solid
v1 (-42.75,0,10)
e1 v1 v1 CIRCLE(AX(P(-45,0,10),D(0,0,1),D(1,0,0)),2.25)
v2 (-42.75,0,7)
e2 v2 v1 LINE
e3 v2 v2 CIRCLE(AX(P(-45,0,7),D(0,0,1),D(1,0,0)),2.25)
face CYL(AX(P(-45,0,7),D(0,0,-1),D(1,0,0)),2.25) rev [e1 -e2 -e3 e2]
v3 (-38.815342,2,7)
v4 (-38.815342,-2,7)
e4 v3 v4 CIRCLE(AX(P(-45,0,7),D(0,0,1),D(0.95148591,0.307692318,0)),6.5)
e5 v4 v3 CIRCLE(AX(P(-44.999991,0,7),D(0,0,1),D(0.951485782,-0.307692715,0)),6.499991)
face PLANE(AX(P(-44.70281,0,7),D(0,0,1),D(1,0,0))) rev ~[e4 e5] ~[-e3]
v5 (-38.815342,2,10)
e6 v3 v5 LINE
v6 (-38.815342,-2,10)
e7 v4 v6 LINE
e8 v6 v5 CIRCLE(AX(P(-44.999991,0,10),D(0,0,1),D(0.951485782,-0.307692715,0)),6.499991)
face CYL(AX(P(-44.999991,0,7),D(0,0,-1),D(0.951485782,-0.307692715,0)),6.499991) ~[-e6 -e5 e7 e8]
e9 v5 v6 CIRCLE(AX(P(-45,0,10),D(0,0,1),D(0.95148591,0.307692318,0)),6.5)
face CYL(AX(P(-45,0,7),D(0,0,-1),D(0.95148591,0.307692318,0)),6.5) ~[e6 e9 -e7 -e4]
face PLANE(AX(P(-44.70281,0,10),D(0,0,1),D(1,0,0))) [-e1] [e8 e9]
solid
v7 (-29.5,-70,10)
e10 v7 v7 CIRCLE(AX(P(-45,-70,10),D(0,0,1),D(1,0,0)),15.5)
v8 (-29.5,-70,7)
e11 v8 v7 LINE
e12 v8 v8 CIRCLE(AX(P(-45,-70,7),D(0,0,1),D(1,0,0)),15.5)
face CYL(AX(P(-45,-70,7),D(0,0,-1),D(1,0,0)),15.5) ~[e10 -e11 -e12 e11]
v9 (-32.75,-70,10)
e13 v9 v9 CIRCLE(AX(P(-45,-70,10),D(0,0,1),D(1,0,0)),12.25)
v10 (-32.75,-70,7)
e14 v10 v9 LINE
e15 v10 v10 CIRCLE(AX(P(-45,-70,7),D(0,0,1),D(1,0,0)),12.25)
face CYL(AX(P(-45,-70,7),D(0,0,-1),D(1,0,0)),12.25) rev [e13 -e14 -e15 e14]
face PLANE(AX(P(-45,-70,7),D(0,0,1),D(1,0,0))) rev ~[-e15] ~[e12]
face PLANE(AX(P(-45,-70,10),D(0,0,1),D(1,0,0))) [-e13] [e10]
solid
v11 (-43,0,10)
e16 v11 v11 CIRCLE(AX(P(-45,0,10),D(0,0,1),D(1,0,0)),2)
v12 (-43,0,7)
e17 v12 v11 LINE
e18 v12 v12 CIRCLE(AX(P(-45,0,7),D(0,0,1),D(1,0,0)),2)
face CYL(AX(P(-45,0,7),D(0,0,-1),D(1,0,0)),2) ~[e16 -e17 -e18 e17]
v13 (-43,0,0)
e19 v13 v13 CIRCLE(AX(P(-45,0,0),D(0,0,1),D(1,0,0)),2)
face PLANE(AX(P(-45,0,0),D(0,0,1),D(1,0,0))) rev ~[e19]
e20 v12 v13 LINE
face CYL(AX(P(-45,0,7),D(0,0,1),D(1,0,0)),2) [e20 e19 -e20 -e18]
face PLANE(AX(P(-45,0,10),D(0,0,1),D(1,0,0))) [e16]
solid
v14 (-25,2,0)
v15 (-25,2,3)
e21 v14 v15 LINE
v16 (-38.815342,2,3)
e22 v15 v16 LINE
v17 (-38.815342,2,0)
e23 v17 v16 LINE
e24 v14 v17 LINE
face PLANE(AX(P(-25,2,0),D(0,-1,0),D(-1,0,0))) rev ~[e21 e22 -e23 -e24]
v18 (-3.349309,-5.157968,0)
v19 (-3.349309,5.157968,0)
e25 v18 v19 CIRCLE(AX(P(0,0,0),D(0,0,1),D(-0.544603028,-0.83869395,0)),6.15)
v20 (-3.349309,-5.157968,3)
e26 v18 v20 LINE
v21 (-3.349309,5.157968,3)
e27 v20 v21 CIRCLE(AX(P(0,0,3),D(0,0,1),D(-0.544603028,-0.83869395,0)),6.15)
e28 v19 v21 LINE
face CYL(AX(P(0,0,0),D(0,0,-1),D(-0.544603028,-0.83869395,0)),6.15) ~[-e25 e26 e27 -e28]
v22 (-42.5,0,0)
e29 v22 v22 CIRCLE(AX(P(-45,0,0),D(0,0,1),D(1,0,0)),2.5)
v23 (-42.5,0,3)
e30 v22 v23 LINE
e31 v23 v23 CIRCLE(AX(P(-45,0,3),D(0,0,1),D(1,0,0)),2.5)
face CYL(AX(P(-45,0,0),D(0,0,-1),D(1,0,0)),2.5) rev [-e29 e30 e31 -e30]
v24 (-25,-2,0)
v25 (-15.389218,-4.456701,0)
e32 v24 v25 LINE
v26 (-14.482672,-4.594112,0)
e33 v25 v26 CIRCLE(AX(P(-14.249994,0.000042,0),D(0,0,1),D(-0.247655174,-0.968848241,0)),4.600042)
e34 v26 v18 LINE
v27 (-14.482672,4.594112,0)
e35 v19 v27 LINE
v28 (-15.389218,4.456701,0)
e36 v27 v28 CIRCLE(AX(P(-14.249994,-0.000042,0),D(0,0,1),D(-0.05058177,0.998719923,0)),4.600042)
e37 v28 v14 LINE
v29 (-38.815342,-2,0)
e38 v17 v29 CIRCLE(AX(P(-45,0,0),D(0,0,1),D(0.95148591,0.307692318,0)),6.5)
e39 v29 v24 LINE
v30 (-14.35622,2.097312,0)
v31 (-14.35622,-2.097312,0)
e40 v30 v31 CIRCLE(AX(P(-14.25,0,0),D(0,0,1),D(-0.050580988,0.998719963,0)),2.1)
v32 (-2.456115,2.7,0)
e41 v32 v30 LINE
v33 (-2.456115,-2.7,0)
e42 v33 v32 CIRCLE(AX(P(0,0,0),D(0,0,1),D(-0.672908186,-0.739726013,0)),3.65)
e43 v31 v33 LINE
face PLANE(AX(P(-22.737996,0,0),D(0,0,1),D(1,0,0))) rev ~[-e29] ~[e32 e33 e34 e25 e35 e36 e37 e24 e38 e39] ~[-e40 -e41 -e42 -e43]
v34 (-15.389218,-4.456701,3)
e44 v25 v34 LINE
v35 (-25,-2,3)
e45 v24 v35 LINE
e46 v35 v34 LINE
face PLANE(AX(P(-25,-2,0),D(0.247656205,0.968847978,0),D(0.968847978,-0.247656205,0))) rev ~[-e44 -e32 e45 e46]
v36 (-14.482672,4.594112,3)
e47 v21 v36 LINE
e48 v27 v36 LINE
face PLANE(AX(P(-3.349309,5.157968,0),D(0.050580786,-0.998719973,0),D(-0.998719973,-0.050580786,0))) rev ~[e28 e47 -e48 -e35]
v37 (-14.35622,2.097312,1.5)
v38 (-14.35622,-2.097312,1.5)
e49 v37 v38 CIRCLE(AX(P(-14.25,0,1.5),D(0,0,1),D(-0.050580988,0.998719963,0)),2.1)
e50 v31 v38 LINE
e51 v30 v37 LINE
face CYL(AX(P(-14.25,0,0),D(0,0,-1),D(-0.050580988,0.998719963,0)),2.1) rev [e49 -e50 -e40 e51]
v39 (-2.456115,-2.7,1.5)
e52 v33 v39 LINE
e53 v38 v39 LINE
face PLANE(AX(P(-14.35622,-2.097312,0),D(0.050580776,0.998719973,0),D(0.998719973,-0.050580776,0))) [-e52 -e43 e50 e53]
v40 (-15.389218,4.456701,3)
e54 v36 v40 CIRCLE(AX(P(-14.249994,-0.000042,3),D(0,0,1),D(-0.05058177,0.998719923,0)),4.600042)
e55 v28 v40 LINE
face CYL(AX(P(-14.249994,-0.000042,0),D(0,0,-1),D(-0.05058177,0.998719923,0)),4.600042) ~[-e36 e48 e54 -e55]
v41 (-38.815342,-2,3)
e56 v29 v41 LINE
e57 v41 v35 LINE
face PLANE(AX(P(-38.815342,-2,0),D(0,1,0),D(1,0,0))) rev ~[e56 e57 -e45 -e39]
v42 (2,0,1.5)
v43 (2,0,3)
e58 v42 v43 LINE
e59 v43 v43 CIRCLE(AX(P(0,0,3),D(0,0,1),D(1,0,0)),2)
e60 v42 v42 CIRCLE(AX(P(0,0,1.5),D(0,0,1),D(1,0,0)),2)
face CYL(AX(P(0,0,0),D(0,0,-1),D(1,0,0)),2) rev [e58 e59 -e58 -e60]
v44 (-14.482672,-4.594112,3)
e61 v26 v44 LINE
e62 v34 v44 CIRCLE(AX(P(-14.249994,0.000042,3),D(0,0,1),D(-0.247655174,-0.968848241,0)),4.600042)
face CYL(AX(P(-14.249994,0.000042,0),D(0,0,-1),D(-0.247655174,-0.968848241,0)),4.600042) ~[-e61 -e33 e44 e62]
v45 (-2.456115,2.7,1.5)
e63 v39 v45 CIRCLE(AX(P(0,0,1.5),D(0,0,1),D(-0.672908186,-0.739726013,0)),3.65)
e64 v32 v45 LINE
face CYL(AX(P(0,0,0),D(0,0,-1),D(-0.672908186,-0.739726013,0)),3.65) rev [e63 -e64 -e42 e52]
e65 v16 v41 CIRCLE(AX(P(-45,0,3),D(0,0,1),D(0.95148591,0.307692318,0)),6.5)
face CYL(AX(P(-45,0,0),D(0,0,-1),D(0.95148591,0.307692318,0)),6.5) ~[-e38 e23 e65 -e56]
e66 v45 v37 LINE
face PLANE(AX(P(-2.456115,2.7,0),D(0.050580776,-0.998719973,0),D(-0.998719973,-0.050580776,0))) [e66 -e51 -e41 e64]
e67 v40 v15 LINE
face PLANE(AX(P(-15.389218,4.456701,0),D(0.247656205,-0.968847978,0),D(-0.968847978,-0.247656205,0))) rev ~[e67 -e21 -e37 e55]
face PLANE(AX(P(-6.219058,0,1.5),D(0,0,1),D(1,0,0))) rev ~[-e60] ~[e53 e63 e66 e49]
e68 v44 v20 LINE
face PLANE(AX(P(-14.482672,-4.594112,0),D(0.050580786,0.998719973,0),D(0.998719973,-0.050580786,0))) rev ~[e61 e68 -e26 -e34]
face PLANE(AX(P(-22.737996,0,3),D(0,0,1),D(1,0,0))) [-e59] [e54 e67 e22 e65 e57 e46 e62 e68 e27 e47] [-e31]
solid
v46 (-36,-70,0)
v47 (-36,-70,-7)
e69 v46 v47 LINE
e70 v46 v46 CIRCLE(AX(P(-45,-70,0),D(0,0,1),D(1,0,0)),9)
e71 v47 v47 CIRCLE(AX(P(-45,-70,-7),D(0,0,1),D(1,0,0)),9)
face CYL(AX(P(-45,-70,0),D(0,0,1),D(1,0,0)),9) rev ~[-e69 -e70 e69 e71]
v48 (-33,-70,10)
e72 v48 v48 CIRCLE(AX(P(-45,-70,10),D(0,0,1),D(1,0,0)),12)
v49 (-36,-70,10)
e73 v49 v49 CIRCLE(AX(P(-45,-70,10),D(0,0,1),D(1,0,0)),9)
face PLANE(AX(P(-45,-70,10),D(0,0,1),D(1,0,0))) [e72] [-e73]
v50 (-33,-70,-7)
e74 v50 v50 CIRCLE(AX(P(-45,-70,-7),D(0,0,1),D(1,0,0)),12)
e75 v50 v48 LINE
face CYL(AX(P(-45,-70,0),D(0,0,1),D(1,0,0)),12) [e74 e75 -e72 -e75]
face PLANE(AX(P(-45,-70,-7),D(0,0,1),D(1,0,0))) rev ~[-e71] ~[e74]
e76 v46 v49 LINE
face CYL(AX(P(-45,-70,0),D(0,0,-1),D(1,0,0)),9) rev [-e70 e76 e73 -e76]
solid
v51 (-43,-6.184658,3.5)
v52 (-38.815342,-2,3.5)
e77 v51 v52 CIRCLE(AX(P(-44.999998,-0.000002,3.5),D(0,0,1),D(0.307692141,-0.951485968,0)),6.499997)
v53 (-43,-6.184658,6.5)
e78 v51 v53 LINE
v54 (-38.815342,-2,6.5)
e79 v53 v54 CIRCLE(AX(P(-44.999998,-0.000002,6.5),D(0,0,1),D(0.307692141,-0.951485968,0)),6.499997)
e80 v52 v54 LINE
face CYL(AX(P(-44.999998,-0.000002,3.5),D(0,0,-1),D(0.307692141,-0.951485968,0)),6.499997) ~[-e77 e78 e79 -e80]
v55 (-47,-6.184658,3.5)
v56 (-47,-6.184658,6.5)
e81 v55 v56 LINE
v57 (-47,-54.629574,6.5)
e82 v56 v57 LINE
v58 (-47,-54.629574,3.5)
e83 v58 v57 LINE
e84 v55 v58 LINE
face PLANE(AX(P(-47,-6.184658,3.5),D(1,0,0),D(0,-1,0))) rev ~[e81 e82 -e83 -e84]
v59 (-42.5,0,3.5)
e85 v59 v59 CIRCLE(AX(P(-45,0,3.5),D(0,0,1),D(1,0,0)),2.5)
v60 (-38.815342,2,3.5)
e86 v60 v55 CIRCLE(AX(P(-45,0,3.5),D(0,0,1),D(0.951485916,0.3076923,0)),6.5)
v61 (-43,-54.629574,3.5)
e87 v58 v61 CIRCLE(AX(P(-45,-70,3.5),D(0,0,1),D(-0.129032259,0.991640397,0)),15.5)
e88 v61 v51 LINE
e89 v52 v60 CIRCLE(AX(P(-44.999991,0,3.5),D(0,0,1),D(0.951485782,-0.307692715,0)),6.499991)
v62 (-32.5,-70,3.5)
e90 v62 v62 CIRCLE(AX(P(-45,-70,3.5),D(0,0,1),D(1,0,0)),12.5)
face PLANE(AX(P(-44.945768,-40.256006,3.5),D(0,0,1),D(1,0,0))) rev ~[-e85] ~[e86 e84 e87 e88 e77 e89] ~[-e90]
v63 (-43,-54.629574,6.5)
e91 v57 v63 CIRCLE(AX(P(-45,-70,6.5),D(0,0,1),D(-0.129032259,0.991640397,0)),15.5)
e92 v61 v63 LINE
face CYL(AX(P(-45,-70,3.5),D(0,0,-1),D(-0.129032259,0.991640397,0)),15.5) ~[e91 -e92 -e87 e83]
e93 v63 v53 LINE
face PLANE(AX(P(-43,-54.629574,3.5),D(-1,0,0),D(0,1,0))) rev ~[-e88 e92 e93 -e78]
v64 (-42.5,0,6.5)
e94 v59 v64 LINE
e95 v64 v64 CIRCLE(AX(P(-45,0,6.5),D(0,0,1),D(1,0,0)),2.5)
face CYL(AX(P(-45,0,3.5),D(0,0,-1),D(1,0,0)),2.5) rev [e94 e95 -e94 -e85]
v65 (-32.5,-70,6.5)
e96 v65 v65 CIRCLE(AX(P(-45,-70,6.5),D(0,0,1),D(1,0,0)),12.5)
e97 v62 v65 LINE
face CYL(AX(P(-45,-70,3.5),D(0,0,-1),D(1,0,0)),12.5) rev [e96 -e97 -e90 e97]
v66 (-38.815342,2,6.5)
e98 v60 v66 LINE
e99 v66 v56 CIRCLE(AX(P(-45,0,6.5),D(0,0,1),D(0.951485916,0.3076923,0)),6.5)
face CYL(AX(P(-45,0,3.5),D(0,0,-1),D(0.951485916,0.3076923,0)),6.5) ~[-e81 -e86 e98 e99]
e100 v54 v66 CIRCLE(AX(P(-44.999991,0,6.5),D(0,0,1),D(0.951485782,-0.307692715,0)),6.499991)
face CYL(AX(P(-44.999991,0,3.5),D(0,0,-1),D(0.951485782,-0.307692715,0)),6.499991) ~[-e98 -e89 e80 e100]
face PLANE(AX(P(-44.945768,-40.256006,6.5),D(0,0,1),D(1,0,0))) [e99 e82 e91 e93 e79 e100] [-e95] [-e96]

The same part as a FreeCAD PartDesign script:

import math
import FreeCAD as App
import Part
import Sketcher
from FreeCAD import Vector
Q = App.Units.Quantity

doc = App.newDocument("Part")
body = doc.addObject("PartDesign::Body", "Body")

sketch1 = body.newObject("Sketcher::SketchObject", "Sketch")
sketch1.AttachmentSupport = (doc.getObject("XY_Plane"), [""])
sketch1.MapMode = "FlatFace"
sketch1.addGeometry([
    Part.ArcOfCircle(Part.Circle(Vector(0, 0, 0), Vector(0, 0, 1), 6.15), math.radians(-122.99754), math.radians(122.99754)),
    Part.LineSegment(Vector(-3.349309, 5.157968, 0), Vector(-14.482672, 4.594112, 0)),
    Part.ArcOfCircle(Part.Circle(Vector(-14.249994, -0.000042, 0), Vector(0, 0, 1), 4.600042), math.radians(92.899359), math.radians(104.338801)),
    Part.LineSegment(Vector(-15.389218, 4.456701, 0), Vector(-25, 2, 0)),
    Part.LineSegment(Vector(-25, 2, 0), Vector(-38.815342, 2, 0)),
    Part.ArcOfCircle(Part.Circle(Vector(-45, 0, 0), Vector(0, 0, 1), 6.5), math.radians(17.920214), math.radians(342.079786)),
    Part.LineSegment(Vector(-38.815342, -2, 0), Vector(-25, -2, 0)),
    Part.LineSegment(Vector(-25, -2, 0), Vector(-15.389218, -4.456701, 0)),
    Part.ArcOfCircle(Part.Circle(Vector(-14.249994, 0.000042, 0), Vector(0, 0, 1), 4.600042), math.radians(-104.338801), math.radians(-92.899359)),
    Part.LineSegment(Vector(-14.482672, -4.594112, 0), Vector(-3.349309, -5.157968, 0)),
    Part.Circle(Vector(-45, 0, 0), Vector(0, 0, 1), 2.5),
    Part.Circle(Vector(0, 0, 0), Vector(0, 0, 1), 2),
], False)
sketch1.addConstraint([
    Sketcher.Constraint("Coincident", 0, 2, 1, 1),
    Sketcher.Constraint("Tangent", 1, 2, 2, 1),
    Sketcher.Constraint("Tangent", 2, 2, 3, 1),
    Sketcher.Constraint("Coincident", 3, 2, 4, 1),
    Sketcher.Constraint("Coincident", 4, 2, 5, 1),
    Sketcher.Constraint("Coincident", 5, 2, 6, 1),
    Sketcher.Constraint("Coincident", 6, 2, 7, 1),
    Sketcher.Constraint("Tangent", 7, 2, 8, 1),
    Sketcher.Constraint("Tangent", 8, 2, 9, 1),
    Sketcher.Constraint("Coincident", 9, 2, 0, 1),
    Sketcher.Constraint("Horizontal", 4),
    Sketcher.Constraint("Horizontal", 6),
    Sketcher.Constraint("Coincident", 0, 3, -1, 1),
    Sketcher.Constraint("Coincident", 11, 3, -1, 1),
    Sketcher.Constraint("Coincident", 10, 3, 5, 3),
    Sketcher.Constraint("Equal", 2, 8),
    Sketcher.Constraint("Symmetric", 2, 3, 8, 3, -1),
    Sketcher.Constraint("Symmetric", 4, 2, 5, 2, -1),
    Sketcher.Constraint("Vertical", 3, 2, 6, 2),
    Sketcher.Constraint("Vertical", 1, 2, 8, 2),
    Sketcher.Constraint("Diameter", 10, Q("5 mm")),
    Sketcher.Constraint("Diameter", 11, Q("4 mm")),
    Sketcher.Constraint("Radius", 5, Q("6.5 mm")),
    Sketcher.Constraint("Radius", 0, Q("6.15 mm")),
    Sketcher.Constraint("DistanceX", 5, 3, -1, 1, Q("45 mm")),
    Sketcher.Constraint("DistanceX", 3, 2, -1, 1, Q("25 mm")),
    Sketcher.Constraint("DistanceY", -1, 1, 3, 2, Q("2 mm")),
    Sketcher.Constraint("Radius", 2, Q("4.600042 mm")),
    Sketcher.Constraint("DistanceY", -1, 1, 2, 2, Q("4.456701 mm")),
    Sketcher.Constraint("DistanceX", 0, 2, -1, 1, Q("3.349309 mm")),
    Sketcher.Constraint("DistanceX", 8, 2, -1, 1, Q("14.482672 mm")),
])
pad1 = body.newObject("PartDesign::Pad", "Pad")
pad1.Profile = sketch1
pad1.Length = 3

sketch2 = body.newObject("Sketcher::SketchObject", "Sketch001")
sketch2.AttachmentSupport = (doc.getObject("XY_Plane"), [""])
sketch2.MapMode = "FlatFace"
sketch2.addGeometry([
    Part.LineSegment(Vector(-14.4, -2.1, 0), Vector(-2.5, -2.7, 0)),
    Part.ArcOfCircle(Part.Circle(Vector(0, 0, 0), Vector(0, 0, 1), 3.7), math.radians(-132), math.radians(132)),
    Part.LineSegment(Vector(-2.5, 2.7, 0), Vector(-14.4, 2.1, 0)),
    Part.ArcOfCircle(Part.Circle(Vector(-14.2, 0, 0), Vector(0, 0, 1), 2.1), math.radians(93), math.radians(267)),
    Part.Circle(Vector(0, 0, 0), Vector(0, 0, 1), 2),
], False)
sketch2.addConstraint([
    Sketcher.Constraint("Coincident", 0, 2, 1, 1),
    Sketcher.Constraint("Coincident", 1, 2, 2, 1),
    Sketcher.Constraint("Tangent", 2, 2, 3, 1),
    Sketcher.Constraint("Tangent", 3, 2, 0, 1),
    Sketcher.Constraint("Coincident", 1, 3, -1, 1),
    Sketcher.Constraint("Coincident", 4, 3, -1, 1),
    Sketcher.Constraint("Symmetric", 2, 2, 3, 2, -1),
    Sketcher.Constraint("Diameter", 4, Q("4 mm")),
    Sketcher.Constraint("Radius", 3, Q("2.1 mm")),
    Sketcher.Constraint("Radius", 1, Q("3.65 mm")),
    Sketcher.Constraint("DistanceY", 0, 2, -1, 1, Q("2.7 mm")),
    Sketcher.Constraint("DistanceX", 3, 3, -1, 1, Q("14.25 mm")),
])
pocket1 = body.newObject("PartDesign::Pocket", "Pocket")
pocket1.Profile = sketch2
pocket1.Length = 1.5
pocket1.Reversed = True
body2 = doc.addObject("PartDesign::Body", "Body001")

sketch3 = body2.newObject("Sketcher::SketchObject", "Sketch002")
sketch3.AttachmentSupport = (doc.getObject("XY_Plane001"), [""])
sketch3.MapMode = "FlatFace"
sketch3.AttachmentOffset = App.Placement(Vector(0, 0, 3.5), App.Rotation())
sketch3.addGeometry([
    Part.ArcOfCircle(Part.Circle(Vector(-45, 0, 0), Vector(0, 0, 1), 6.5), math.radians(-18), math.radians(18)),
    Part.ArcOfCircle(Part.Circle(Vector(-45, 0, 0), Vector(0, 0, 1), 6.5), math.radians(18), math.radians(252)),
    Part.LineSegment(Vector(-47, -6.2, 0), Vector(-47, -54.6, 0)),
    Part.ArcOfCircle(Part.Circle(Vector(-45, -70, 0), Vector(0, 0, 1), 15.5), math.radians(97), math.radians(443)),
    Part.LineSegment(Vector(-43, -54.6, 0), Vector(-43, -6.2, 0)),
    Part.ArcOfCircle(Part.Circle(Vector(-45, 0, 0), Vector(0, 0, 1), 6.5), math.radians(-72), math.radians(-18)),
    Part.Circle(Vector(-45, -70, 0), Vector(0, 0, 1), 12.5),
    Part.Circle(Vector(-45, 0, 0), Vector(0, 0, 1), 2.5),
], False)
sketch3.addConstraint([
    Sketcher.Constraint("Tangent", 0, 2, 1, 1),
    Sketcher.Constraint("Coincident", 1, 2, 2, 1),
    Sketcher.Constraint("Coincident", 2, 2, 3, 1),
    Sketcher.Constraint("Coincident", 3, 2, 4, 1),
    Sketcher.Constraint("Coincident", 4, 2, 5, 1),
    Sketcher.Constraint("Tangent", 5, 2, 0, 1),
    Sketcher.Constraint("Vertical", 2),
    Sketcher.Constraint("Vertical", 4),
    Sketcher.Constraint("Coincident", 6, 3, 3, 3),
    Sketcher.Constraint("Coincident", 7, 3, 0, 3),
    Sketcher.Constraint("Symmetric", 0, 2, 5, 2, -1),
    Sketcher.Constraint("PointOnObject", 1, 3, -1),
    Sketcher.Constraint("PointOnObject", 5, 3, -1),
    Sketcher.Constraint("Horizontal", 2, 2, 3, 2),
    Sketcher.Constraint("Horizontal", 1, 2, 4, 2),
    Sketcher.Constraint("Diameter", 6, Q("25 mm")),
    Sketcher.Constraint("Diameter", 7, Q("5 mm")),
    Sketcher.Constraint("Radius", 1, Q("6.5 mm")),
    Sketcher.Constraint("Radius", 3, Q("15.5 mm")),
    Sketcher.Constraint("DistanceX", 1, 3, -1, 1, Q("45 mm")),
    Sketcher.Constraint("DistanceY", 3, 3, -1, 1, Q("70 mm")),
    Sketcher.Constraint("DistanceY", -1, 1, 0, 2, Q("2 mm")),
    Sketcher.Constraint("DistanceX", 1, 2, -1, 1, Q("47 mm")),
])
pad2 = body2.newObject("PartDesign::Pad", "Pad001")
pad2.Profile = sketch3
pad2.Length = 3
body3 = doc.addObject("PartDesign::Body", "Body002")

sketch4 = body3.newObject("Sketcher::SketchObject", "Sketch003")
sketch4.AttachmentSupport = (doc.getObject("XY_Plane002"), [""])
sketch4.MapMode = "FlatFace"
sketch4.AttachmentOffset = App.Placement(Vector(0, 0, 7), App.Rotation())
sketch4.addGeometry([
    Part.ArcOfCircle(Part.Circle(Vector(-45, 0, 0), Vector(0, 0, 1), 6.5), math.radians(18), math.radians(342)),
    Part.ArcOfCircle(Part.Circle(Vector(-45, 0, 0), Vector(0, 0, 1), 6.5), math.radians(-18), math.radians(18)),
    Part.Circle(Vector(-45, 0, 0), Vector(0, 0, 1), 2.2),
], False)
sketch4.addConstraint([
    Sketcher.Constraint("Tangent", 0, 1, 1, 2),
    Sketcher.Constraint("Coincident", 1, 1, 0, 2),
    Sketcher.Constraint("Coincident", 2, 3, 0, 3),
    Sketcher.Constraint("Symmetric", 0, 1, 1, 1, -1),
    Sketcher.Constraint("Diameter", 2, Q("4.5 mm")),
    Sketcher.Constraint("Radius", 0, Q("6.5 mm")),
    Sketcher.Constraint("DistanceX", 0, 3, -1, 1, Q("45 mm")),
    Sketcher.Constraint("DistanceY", -1, 1, 0, 1, Q("2 mm")),
])
pad3 = body3.newObject("PartDesign::Pad", "Pad002")
pad3.Profile = sketch4
pad3.Length = 3
body4 = doc.addObject("PartDesign::Body", "Body003")

sketch5 = body4.newObject("Sketcher::SketchObject", "Sketch004")
sketch5.AttachmentSupport = (doc.getObject("XY_Plane003"), [""])
sketch5.MapMode = "FlatFace"
sketch5.AttachmentOffset = App.Placement(Vector(0, 0, 7), App.Rotation())
sketch5.addGeometry(Part.Circle(Vector(-45, 0, 0), Vector(0, 0, 1), 2), False)
sketch5.addConstraint([
    Sketcher.Constraint("PointOnObject", 0, 3, -1),
    Sketcher.Constraint("Diameter", 0, Q("4 mm")),
    Sketcher.Constraint("DistanceX", 0, 3, -1, 1, Q("45 mm")),
])
pad4 = body4.newObject("PartDesign::Pad", "Pad003")
pad4.Profile = sketch5
pad4.Length = 7
pad4.Reversed = True

sketch6 = body4.newObject("Sketcher::SketchObject", "Sketch005")
sketch6.AttachmentSupport = (doc.getObject("XY_Plane003"), [""])
sketch6.MapMode = "FlatFace"
sketch6.AttachmentOffset = App.Placement(Vector(0, 0, 7), App.Rotation())
sketch6.addGeometry(Part.Circle(Vector(-45, 0, 0), Vector(0, 0, 1), 2), False)
sketch6.addConstraint([
    Sketcher.Constraint("PointOnObject", 0, 3, -1),
    Sketcher.Constraint("Diameter", 0, Q("4 mm")),
    Sketcher.Constraint("DistanceX", 0, 3, -1, 1, Q("45 mm")),
])
pad5 = body4.newObject("PartDesign::Pad", "Pad004")
pad5.Profile = sketch6
pad5.Length = 3
body5 = doc.addObject("PartDesign::Body", "Body004")

sketch7 = body5.newObject("Sketcher::SketchObject", "Sketch006")
sketch7.AttachmentSupport = (doc.getObject("XY_Plane004"), [""])
sketch7.MapMode = "FlatFace"
sketch7.addGeometry([
    Part.Circle(Vector(-45, -70, 0), Vector(0, 0, 1), 12),
    Part.Circle(Vector(-45, -70, 0), Vector(0, 0, 1), 9),
], False)
sketch7.addConstraint([
    Sketcher.Constraint("Coincident", 1, 3, 0, 3),
    Sketcher.Constraint("Diameter", 0, Q("24 mm")),
    Sketcher.Constraint("Diameter", 1, Q("18 mm")),
    Sketcher.Constraint("DistanceX", 0, 3, -1, 1, Q("45 mm")),
    Sketcher.Constraint("DistanceY", 0, 3, -1, 1, Q("70 mm")),
])
pad6 = body5.newObject("PartDesign::Pad", "Pad005")
pad6.Profile = sketch7
pad6.Length = 10

sketch8 = body5.newObject("Sketcher::SketchObject", "Sketch007")
sketch8.AttachmentSupport = (doc.getObject("XY_Plane004"), [""])
sketch8.MapMode = "FlatFace"
sketch8.addGeometry([
    Part.Circle(Vector(-45, -70, 0), Vector(0, 0, 1), 12),
    Part.Circle(Vector(-45, -70, 0), Vector(0, 0, 1), 9),
], False)
sketch8.addConstraint([
    Sketcher.Constraint("Coincident", 1, 3, 0, 3),
    Sketcher.Constraint("Diameter", 0, Q("24 mm")),
    Sketcher.Constraint("Diameter", 1, Q("18 mm")),
    Sketcher.Constraint("DistanceX", 0, 3, -1, 1, Q("45 mm")),
    Sketcher.Constraint("DistanceY", 0, 3, -1, 1, Q("70 mm")),
])
pad7 = body5.newObject("PartDesign::Pad", "Pad006")
pad7.Profile = sketch8
pad7.Length = 7
pad7.Reversed = True
body6 = doc.addObject("PartDesign::Body", "Body005")

sketch9 = body6.newObject("Sketcher::SketchObject", "Sketch008")
sketch9.AttachmentSupport = (doc.getObject("XY_Plane005"), [""])
sketch9.MapMode = "FlatFace"
sketch9.AttachmentOffset = App.Placement(Vector(0, 0, 7), App.Rotation())
sketch9.addGeometry([
    Part.Circle(Vector(-45, -70, 0), Vector(0, 0, 1), 16),
    Part.Circle(Vector(-45, -70, 0), Vector(0, 0, 1), 12),
], False)
sketch9.addConstraint([
    Sketcher.Constraint("Coincident", 1, 3, 0, 3),
    Sketcher.Constraint("Diameter", 0, Q("31 mm")),
    Sketcher.Constraint("Diameter", 1, Q("24.5 mm")),
    Sketcher.Constraint("DistanceX", 0, 3, -1, 1, Q("45 mm")),
    Sketcher.Constraint("DistanceY", 0, 3, -1, 1, Q("70 mm")),
])
pad8 = body6.newObject("PartDesign::Pad", "Pad007")
pad8.Profile = sketch9
pad8.Length = 3

doc.recompute()
